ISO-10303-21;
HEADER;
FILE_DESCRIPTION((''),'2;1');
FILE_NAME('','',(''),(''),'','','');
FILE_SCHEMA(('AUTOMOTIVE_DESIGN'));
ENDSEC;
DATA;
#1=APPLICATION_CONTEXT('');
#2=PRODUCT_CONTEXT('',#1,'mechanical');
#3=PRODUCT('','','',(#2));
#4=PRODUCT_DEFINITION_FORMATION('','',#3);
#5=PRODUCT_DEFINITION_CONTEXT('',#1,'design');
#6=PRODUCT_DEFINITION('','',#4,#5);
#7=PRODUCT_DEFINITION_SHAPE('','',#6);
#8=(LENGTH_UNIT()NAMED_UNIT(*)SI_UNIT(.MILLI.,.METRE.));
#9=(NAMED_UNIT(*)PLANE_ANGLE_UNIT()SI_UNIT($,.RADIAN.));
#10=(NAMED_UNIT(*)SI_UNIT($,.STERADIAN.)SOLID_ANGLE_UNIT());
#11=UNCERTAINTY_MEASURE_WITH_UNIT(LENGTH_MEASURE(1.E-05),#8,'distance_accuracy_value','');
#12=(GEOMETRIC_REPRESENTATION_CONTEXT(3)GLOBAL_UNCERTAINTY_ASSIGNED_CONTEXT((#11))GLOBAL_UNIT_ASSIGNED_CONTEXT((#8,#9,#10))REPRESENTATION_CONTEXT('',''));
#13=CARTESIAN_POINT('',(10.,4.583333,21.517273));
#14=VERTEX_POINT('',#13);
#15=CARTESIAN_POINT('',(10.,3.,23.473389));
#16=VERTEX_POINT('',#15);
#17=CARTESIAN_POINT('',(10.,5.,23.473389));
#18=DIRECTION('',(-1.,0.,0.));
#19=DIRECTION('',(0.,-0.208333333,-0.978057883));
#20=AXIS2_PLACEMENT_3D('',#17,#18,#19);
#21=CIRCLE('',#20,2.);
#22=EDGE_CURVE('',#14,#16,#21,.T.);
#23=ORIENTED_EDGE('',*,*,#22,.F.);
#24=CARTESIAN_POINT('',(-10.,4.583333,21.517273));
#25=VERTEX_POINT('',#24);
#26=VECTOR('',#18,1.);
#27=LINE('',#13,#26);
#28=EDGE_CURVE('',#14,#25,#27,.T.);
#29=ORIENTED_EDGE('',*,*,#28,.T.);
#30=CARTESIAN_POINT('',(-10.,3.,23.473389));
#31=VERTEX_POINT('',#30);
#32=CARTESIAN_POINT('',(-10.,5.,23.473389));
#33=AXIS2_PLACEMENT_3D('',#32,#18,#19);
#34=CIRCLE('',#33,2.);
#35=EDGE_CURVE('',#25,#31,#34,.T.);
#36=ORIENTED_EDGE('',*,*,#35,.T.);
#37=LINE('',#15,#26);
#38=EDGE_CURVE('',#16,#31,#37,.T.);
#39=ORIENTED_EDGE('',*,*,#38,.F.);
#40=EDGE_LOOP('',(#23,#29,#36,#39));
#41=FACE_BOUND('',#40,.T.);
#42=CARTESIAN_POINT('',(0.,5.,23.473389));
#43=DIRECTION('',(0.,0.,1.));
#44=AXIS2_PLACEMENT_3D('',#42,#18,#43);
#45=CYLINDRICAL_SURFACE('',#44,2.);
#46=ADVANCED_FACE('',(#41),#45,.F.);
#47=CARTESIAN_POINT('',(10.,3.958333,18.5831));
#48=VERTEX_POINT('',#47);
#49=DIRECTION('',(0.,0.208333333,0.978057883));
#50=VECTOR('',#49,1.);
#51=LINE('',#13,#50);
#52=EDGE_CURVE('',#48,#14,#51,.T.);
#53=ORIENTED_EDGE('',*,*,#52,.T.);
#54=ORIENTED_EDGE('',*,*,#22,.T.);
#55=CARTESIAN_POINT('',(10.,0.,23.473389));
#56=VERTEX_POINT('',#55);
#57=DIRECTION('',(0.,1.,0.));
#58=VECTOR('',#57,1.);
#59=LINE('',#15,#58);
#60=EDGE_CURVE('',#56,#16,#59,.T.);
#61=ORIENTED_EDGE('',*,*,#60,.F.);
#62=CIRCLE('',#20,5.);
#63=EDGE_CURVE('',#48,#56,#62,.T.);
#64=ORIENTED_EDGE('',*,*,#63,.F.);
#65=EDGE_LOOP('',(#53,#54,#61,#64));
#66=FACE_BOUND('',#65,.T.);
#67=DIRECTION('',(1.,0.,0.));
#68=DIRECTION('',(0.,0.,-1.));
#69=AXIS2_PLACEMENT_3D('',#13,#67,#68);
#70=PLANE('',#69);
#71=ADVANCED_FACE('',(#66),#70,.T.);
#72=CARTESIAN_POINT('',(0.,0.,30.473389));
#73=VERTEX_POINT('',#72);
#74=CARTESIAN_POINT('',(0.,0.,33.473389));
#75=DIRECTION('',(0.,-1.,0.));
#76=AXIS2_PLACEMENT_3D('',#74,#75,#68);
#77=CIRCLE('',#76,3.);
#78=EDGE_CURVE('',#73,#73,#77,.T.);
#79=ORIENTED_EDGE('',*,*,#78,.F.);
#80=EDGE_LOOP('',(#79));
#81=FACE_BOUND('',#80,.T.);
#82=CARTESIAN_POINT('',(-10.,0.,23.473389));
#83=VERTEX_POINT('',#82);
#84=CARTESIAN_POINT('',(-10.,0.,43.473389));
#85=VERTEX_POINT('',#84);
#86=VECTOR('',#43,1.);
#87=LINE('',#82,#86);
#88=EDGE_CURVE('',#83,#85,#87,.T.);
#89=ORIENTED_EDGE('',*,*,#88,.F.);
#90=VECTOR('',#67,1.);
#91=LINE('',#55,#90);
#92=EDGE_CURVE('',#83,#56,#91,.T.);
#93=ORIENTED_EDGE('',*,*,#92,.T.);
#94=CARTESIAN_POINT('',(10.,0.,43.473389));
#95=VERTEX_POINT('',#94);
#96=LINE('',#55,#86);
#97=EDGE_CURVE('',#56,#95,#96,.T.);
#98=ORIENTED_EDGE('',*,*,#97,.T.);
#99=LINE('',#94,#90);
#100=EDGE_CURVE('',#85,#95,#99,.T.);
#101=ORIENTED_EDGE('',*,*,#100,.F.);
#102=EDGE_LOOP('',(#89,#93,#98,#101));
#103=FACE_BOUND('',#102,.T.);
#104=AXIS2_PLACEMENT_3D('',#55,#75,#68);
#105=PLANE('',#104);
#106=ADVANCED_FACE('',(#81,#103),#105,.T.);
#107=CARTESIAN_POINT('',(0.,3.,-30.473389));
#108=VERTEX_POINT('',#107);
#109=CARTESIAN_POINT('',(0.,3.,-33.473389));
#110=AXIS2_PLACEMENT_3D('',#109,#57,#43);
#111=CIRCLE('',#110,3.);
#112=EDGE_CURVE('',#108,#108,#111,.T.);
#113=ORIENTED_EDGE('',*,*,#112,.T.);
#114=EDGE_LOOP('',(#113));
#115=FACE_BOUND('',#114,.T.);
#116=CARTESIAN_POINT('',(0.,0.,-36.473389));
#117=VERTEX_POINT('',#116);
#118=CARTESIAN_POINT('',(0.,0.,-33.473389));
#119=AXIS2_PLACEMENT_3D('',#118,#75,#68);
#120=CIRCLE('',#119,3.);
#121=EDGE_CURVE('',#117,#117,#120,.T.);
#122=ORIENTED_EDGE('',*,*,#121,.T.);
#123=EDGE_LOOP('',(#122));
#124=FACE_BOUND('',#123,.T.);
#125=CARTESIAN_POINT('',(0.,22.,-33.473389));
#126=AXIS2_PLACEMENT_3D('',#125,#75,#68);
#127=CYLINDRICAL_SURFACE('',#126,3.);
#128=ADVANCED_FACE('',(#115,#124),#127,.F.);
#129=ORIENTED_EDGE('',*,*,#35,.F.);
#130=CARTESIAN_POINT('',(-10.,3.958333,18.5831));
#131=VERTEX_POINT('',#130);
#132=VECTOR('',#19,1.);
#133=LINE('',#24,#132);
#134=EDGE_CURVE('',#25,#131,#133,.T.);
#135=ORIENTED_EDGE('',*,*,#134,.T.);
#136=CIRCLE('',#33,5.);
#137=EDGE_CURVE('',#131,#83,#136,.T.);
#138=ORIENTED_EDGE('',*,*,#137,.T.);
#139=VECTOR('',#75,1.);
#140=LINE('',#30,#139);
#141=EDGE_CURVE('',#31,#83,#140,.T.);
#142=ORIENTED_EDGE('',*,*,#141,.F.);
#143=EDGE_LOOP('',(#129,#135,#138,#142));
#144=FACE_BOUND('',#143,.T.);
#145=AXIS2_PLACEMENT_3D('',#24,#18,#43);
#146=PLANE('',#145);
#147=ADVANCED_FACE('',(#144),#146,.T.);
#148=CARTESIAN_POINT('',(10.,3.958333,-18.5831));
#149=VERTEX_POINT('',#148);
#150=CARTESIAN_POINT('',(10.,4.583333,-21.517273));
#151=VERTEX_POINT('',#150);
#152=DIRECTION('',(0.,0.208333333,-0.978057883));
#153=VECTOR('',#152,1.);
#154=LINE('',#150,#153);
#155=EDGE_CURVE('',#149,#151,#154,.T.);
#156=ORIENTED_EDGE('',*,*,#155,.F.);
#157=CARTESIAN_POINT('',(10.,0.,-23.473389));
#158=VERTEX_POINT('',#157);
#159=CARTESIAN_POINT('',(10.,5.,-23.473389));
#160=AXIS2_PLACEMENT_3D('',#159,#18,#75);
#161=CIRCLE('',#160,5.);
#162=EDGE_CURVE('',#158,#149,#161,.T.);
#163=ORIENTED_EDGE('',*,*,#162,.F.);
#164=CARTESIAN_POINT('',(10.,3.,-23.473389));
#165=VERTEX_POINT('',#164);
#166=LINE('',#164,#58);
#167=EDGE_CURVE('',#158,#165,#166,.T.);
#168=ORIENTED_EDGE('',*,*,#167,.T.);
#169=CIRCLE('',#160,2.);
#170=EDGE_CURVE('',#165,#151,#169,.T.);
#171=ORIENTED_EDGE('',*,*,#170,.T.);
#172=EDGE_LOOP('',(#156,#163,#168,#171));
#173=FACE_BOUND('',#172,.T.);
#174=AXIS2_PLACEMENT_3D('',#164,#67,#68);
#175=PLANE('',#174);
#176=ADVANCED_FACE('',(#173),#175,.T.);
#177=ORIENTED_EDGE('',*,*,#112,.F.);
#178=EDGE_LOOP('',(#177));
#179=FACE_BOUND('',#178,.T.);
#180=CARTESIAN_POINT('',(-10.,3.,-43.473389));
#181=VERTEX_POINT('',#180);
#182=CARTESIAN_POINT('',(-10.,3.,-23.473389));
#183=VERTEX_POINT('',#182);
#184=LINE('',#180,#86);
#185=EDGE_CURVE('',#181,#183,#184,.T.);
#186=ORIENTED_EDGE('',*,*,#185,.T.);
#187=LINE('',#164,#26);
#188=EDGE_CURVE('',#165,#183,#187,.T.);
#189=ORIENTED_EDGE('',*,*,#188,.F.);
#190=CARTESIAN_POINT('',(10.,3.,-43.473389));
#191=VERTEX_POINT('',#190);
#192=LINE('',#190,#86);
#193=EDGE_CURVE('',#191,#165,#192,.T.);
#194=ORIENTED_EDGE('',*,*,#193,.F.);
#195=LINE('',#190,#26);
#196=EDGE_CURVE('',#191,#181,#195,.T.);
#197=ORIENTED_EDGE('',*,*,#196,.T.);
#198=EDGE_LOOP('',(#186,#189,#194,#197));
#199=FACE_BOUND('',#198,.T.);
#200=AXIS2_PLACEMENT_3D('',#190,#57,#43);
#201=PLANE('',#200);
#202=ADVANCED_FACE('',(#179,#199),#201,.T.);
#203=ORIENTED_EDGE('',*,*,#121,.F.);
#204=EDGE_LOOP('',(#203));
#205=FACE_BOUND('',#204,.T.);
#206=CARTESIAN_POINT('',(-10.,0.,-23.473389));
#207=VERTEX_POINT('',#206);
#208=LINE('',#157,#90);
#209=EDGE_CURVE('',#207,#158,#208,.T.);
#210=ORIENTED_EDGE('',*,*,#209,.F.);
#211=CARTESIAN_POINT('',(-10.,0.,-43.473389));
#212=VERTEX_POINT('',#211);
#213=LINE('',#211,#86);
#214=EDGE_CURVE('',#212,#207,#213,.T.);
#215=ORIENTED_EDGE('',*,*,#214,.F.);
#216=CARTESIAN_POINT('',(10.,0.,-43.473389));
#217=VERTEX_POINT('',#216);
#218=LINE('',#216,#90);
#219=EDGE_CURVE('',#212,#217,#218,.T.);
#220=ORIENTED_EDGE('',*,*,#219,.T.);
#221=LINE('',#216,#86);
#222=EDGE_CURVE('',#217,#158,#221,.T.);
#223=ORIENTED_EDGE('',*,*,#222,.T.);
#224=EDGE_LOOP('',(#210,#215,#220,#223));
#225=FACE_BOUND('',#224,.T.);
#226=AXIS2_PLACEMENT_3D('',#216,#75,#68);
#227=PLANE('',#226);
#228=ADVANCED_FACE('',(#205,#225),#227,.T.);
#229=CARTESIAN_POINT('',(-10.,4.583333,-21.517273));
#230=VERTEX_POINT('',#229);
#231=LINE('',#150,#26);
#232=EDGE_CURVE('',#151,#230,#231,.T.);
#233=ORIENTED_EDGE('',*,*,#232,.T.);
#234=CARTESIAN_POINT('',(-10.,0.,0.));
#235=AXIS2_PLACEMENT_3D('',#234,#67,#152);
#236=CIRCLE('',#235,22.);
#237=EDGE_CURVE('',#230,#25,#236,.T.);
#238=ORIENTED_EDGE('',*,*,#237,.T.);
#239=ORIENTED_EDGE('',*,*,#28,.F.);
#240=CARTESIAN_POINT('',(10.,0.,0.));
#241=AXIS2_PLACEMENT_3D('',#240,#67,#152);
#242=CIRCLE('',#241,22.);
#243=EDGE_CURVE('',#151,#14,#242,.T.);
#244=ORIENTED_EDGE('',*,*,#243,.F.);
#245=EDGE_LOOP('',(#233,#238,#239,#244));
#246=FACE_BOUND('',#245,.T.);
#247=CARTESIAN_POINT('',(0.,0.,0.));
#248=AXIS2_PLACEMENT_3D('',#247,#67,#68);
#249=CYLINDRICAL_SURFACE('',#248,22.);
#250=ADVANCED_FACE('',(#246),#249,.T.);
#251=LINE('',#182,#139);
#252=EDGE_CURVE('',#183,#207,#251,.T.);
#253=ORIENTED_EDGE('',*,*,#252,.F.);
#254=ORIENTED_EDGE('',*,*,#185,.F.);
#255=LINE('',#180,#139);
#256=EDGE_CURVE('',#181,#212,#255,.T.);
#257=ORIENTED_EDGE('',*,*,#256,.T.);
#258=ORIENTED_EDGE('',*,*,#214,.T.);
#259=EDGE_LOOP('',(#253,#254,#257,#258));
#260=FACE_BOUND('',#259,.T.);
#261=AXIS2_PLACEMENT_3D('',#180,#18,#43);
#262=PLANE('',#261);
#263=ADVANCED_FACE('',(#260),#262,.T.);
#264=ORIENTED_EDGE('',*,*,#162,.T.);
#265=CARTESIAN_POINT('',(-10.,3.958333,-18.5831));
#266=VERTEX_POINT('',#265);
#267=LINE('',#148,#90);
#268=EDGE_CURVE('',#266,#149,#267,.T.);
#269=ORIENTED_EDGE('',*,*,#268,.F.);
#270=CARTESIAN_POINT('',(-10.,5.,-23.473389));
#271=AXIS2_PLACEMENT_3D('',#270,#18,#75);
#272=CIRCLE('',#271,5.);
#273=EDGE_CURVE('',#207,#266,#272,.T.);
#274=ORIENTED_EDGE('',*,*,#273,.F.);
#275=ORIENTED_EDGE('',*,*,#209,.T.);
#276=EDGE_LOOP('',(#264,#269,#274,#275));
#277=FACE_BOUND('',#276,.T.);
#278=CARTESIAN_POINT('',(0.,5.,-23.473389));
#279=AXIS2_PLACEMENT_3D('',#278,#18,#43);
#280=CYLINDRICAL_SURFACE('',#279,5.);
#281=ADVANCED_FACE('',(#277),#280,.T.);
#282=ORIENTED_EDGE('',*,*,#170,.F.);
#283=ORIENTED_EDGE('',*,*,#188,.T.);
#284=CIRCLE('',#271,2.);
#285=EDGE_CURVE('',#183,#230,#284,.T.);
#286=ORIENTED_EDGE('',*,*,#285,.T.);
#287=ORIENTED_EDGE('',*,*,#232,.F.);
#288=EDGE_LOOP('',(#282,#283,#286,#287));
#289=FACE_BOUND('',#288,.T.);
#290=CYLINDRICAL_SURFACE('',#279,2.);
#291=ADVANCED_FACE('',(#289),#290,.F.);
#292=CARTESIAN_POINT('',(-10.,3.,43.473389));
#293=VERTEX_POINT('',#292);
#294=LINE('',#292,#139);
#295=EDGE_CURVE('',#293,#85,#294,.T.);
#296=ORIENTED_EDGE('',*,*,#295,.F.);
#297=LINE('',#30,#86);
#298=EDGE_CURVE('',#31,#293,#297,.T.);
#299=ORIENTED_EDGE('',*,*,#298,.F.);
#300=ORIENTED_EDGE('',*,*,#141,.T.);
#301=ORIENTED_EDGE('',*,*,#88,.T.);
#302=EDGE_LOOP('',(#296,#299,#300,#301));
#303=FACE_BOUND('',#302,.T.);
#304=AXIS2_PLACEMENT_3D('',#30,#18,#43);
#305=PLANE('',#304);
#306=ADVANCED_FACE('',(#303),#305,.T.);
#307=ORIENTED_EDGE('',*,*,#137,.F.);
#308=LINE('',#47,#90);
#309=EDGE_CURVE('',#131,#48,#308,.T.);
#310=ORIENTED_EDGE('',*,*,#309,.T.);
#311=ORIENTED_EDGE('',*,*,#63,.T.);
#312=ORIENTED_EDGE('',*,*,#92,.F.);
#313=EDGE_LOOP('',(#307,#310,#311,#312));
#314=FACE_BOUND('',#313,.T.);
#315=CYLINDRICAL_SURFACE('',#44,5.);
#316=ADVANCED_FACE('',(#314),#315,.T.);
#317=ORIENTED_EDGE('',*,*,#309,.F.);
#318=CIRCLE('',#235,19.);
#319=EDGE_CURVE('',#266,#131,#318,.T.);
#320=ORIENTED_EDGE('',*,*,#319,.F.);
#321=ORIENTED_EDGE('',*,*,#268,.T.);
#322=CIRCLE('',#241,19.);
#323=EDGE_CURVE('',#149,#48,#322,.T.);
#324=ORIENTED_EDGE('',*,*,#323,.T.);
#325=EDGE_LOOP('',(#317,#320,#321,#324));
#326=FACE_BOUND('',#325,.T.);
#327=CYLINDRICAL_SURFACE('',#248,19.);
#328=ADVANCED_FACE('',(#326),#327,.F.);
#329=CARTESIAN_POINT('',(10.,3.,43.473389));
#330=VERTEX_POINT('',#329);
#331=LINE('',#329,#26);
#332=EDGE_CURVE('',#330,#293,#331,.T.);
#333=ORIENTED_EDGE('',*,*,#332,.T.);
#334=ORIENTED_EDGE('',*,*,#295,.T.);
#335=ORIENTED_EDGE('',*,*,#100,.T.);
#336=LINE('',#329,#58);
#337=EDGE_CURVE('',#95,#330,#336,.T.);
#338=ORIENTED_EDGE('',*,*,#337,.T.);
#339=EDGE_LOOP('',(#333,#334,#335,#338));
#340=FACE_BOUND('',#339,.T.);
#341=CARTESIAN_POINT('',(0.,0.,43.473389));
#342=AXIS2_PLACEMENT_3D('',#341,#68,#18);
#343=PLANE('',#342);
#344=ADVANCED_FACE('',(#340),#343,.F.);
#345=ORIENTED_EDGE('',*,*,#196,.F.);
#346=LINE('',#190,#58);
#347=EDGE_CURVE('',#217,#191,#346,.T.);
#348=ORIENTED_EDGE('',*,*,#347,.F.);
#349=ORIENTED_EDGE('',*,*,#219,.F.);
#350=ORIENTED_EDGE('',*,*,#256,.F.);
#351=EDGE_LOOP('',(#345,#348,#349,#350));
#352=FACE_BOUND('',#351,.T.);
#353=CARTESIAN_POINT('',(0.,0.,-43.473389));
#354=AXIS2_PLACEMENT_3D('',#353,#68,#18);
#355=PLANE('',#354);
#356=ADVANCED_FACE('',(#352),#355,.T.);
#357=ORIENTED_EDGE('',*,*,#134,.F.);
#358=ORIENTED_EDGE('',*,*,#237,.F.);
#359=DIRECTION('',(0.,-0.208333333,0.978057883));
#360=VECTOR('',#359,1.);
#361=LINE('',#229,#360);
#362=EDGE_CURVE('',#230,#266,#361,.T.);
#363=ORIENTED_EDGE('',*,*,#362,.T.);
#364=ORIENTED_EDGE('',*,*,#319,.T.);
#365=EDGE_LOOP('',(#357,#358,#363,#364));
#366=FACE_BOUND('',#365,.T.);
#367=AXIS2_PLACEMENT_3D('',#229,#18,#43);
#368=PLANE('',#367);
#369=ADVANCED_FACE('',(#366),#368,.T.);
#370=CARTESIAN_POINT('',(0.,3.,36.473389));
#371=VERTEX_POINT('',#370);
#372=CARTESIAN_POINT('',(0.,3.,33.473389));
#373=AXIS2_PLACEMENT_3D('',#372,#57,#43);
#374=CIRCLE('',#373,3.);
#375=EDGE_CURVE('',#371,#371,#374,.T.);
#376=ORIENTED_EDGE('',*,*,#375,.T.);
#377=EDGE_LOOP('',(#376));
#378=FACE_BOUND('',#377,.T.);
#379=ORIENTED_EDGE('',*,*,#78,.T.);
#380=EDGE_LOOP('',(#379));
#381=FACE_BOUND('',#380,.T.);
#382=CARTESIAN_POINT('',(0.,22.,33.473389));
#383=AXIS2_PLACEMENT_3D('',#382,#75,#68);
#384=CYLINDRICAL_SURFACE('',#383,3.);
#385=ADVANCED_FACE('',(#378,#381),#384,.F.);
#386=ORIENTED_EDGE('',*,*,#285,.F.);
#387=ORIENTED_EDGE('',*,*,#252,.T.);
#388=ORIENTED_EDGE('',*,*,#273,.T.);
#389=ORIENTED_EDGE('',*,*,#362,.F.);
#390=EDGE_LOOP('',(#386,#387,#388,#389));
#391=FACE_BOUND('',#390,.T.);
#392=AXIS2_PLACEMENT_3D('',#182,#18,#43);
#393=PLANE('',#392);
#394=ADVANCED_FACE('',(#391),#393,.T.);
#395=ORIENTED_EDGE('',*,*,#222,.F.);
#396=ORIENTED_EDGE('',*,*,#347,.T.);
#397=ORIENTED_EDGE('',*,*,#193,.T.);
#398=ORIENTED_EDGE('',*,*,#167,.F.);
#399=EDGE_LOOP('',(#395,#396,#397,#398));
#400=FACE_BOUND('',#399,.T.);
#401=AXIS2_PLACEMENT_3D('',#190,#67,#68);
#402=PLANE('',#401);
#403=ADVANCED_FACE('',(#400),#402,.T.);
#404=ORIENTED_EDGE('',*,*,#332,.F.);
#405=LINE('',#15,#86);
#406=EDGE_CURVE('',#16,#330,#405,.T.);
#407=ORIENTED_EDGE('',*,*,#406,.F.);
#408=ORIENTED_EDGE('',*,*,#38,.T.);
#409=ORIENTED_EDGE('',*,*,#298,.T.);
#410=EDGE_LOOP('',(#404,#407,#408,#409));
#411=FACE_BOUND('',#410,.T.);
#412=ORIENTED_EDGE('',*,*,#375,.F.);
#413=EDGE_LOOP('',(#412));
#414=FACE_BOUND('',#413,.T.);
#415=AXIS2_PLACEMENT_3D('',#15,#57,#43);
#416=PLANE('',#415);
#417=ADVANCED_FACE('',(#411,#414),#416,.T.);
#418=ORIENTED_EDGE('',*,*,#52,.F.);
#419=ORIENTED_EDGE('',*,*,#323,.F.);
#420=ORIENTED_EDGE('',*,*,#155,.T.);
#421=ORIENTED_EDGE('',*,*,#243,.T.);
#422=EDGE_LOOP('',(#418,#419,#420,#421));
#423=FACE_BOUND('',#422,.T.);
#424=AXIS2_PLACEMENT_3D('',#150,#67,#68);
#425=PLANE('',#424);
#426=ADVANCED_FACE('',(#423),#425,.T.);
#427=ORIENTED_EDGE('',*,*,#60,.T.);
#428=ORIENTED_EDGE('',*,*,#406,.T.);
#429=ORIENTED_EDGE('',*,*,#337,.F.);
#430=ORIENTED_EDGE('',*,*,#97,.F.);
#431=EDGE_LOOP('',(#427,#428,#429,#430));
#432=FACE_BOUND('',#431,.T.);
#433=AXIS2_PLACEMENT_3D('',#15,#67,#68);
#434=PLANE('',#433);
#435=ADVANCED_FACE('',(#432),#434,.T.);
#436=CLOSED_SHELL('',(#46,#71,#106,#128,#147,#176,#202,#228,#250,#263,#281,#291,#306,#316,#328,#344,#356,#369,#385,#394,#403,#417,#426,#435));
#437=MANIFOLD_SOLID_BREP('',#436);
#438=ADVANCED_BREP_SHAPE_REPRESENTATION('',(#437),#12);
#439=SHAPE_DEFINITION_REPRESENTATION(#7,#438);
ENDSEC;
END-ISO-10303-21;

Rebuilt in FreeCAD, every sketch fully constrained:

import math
import FreeCAD as App
import Part
import Sketcher
from FreeCAD import Vector
Q = App.Units.Quantity


def add_polygon(sketch, points):
    """Adds a closed chain of lines whose ends are joined by coincident constraints."""
    first, n = sketch.GeometryCount, len(points)
    for a, b in zip(points, points[1:] + points[:1]):
        sketch.addGeometry(Part.LineSegment(App.Vector(*a, 0), App.Vector(*b, 0)), False)
    for i in range(n):
        sketch.addConstraint(Sketcher.Constraint("Coincident", first + i, 2, first + (i + 1) % n, 1))

doc = App.newDocument("Part")
body = doc.addObject("PartDesign::Body", "Body")

# Sketch on XY plane
sketch1 = body.newObject("Sketcher::SketchObject", "Sketch")
sketch1.AttachmentSupport = (doc.getObject("XY_Plane"), [""])
sketch1.MapMode = "FlatFace"
sketch1.AttachmentOffset = App.Placement(Vector(0, 0, -43.473389), App.Rotation())
add_polygon(sketch1, [(-10, 3), (-10, 0), (10, 0), (10, 3)])  # lines 0-3
sketch1.addConstraint(Sketcher.Constraint("Vertical", 0))
sketch1.addConstraint(Sketcher.Constraint("Horizontal", 1))
sketch1.addConstraint(Sketcher.Constraint("Vertical", 2))
sketch1.addConstraint(Sketcher.Constraint("Horizontal", 3))
sketch1.addConstraint(Sketcher.Constraint("Symmetric", 0, 2, 1, 2, -1, 1))
sketch1.addConstraint(Sketcher.Constraint("DistanceX", 1, 1, 1, 2, Q("20 mm")))
sketch1.addConstraint(Sketcher.Constraint("DistanceY", 0, 2, 0, 1, Q("3 mm")))

# Sketch on YZ plane
sketch2 = body.newObject("Sketcher::SketchObject", "Sketch001")
sketch2.AttachmentSupport = (doc.getObject("YZ_Plane"), [""])
sketch2.MapMode = "FlatFace"
sketch2.addGeometry(Part.LineSegment(Vector(0, -43.473389, 0), Vector(0, -23.473389, 0)), False)
sketch2.addGeometry(Part.ArcOfCircle(Part.Circle(Vector(5, -23.473389, 0), Vector(0, 0, 1), 5), math.radians(102.024699), math.radians(180)), False)
sketch2.addGeometry(Part.ArcOfCircle(Part.Circle(Vector(0, 0, 0), Vector(0, 0, 1), 19), math.radians(-77.975301), math.radians(77.975301)), False)
sketch2.addGeometry(Part.ArcOfCircle(Part.Circle(Vector(5, 23.473389, 0), Vector(0, 0, 1), 5), math.radians(180), math.radians(257.975301)), False)
sketch2.addGeometry(Part.LineSegment(Vector(0, 23.473389, 0), Vector(0, 43.473389, 0)), False)
sketch2.addConstraint(Sketcher.Constraint("Tangent", 0, 2, 1, 2))
sketch2.addConstraint(Sketcher.Constraint("Tangent", 1, 1, 2, 1))
sketch2.addConstraint(Sketcher.Constraint("Tangent", 2, 2, 3, 2))
sketch2.addConstraint(Sketcher.Constraint("Tangent", 3, 1, 4, 1))
sketch2.addConstraint(Sketcher.Constraint("Vertical", 0))
sketch2.addConstraint(Sketcher.Constraint("Vertical", 4))
sketch2.addConstraint(Sketcher.Constraint("Coincident", 2, 3, -1, 1))
sketch2.addConstraint(Sketcher.Constraint("Equal", 1, 3))
sketch2.addConstraint(Sketcher.Constraint("Symmetric", 0, 2, 3, 1, -1, 1))
sketch2.addConstraint(Sketcher.Constraint("Equal", 0, 4))
sketch2.addConstraint(Sketcher.Constraint("Radius", 1, Q("5 mm")))
sketch2.addConstraint(Sketcher.Constraint("Radius", 2, Q("19 mm")))
sketch2.addConstraint(Sketcher.Constraint("DistanceY", 0, 1, 0, 2, Q("20 mm")))
doc.recompute()

additivepipe = body.newObject("PartDesign::AdditivePipe", "AdditivePipe")
additivepipe.Profile = sketch1
additivepipe.Spine = (sketch2, ["Edge1", "Edge2", "Edge3", "Edge4", "Edge5"])

# Sketch on XZ plane
sketch3 = body.newObject("Sketcher::SketchObject", "Sketch002")
sketch3.AttachmentSupport = (doc.getObject("XZ_Plane"), [""])
sketch3.MapMode = "FlatFace"
sketch3.addGeometry(Part.Circle(Vector(0, -33.473389, 0), Vector(0, 0, 1), 3), False)
sketch3.addGeometry(Part.Circle(Vector(0, 33.473389, 0), Vector(0, 0, 1), 3), False)
sketch3.addConstraint(Sketcher.Constraint("Equal", 0, 1))
sketch3.addConstraint(Sketcher.Constraint("Symmetric", 0, 3, 1, 3, -1, 1))
sketch3.addConstraint(Sketcher.Constraint("PointOnObject", 0, 3, -2))
sketch3.addConstraint(Sketcher.Constraint("Diameter", 0, Q("6 mm")))
sketch3.addConstraint(Sketcher.Constraint("DistanceY", 0, 3, -1, 1, Q("33.473389 mm")))
pocket1 = body.newObject("PartDesign::Pocket", "Pocket")
pocket1.Profile = sketch3
pocket1.Type = "ThroughAll"

doc.recompute()
